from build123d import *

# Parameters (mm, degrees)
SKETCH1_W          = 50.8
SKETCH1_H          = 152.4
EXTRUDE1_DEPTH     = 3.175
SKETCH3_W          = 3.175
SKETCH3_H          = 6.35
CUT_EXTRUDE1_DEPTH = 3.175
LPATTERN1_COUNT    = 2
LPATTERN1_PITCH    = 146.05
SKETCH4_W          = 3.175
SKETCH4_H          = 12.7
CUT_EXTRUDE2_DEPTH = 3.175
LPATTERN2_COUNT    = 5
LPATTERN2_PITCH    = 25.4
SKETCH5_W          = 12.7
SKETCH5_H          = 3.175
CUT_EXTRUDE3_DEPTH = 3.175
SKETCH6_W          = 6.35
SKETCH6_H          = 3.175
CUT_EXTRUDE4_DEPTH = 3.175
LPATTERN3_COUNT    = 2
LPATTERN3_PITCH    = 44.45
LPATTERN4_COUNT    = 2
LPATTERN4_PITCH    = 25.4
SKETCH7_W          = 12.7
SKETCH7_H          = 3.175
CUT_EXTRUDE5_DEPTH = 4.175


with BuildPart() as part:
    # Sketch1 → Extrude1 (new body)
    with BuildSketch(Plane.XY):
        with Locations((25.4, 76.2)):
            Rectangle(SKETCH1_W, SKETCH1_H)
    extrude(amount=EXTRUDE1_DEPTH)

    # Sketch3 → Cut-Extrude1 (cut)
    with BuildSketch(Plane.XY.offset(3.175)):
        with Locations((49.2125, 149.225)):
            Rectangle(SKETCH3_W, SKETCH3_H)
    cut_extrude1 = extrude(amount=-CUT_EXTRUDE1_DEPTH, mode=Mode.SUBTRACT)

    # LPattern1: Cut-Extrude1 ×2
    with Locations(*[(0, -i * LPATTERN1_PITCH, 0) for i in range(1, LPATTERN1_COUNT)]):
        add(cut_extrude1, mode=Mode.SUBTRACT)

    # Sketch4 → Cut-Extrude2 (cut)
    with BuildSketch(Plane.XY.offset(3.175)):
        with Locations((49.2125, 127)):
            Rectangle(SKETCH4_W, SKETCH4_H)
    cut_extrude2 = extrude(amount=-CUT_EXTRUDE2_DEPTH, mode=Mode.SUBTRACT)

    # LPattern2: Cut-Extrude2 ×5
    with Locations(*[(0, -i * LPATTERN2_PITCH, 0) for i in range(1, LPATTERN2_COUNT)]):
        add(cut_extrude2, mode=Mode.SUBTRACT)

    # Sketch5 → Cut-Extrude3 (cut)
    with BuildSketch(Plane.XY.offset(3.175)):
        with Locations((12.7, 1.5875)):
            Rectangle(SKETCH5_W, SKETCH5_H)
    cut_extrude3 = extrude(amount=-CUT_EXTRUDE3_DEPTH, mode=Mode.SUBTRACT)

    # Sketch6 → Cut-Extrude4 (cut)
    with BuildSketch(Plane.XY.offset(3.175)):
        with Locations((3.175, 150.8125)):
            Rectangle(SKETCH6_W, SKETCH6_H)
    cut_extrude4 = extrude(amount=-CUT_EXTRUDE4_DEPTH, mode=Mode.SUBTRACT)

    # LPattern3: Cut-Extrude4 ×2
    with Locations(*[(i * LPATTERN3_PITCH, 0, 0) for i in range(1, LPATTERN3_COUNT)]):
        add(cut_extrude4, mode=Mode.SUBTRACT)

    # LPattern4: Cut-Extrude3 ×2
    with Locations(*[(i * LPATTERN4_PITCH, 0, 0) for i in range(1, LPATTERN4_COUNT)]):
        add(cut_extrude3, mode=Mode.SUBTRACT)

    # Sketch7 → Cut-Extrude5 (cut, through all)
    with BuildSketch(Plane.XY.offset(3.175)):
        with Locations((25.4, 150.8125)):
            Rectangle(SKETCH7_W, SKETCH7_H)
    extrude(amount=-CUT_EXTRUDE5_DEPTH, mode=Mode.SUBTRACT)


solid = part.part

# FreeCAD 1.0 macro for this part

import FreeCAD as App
import Part
import Sketcher
Q = App.Units.Quantity

doc = App.newDocument("Part")
body = doc.addObject("PartDesign::Body", "Body")

# Sketch on XY plane
sketch1 = doc.addObject("Sketcher::SketchObject", "Sketch")
body.addObject(sketch1)
sketch1.AttachmentSupport = (doc.XY_Plane, [""])
sketch1.MapMode = "FlatFace"
sketch1.addGeometry(Part.LineSegment(App.Vector(0, 152, 0), App.Vector(0, 0, 0)), False)
sketch1.addGeometry(Part.LineSegment(App.Vector(0, 0, 0), App.Vector(51, 0, 0)), False)
sketch1.addGeometry(Part.LineSegment(App.Vector(51, 0, 0), App.Vector(51, 152, 0)), False)
sketch1.addGeometry(Part.LineSegment(App.Vector(51, 152, 0), App.Vector(0, 152, 0)), False)
sketch1.addConstraint(Sketcher.Constraint("Coincident", 0, 2, 1, 1))
sketch1.addConstraint(Sketcher.Constraint("Coincident", 1, 2, 2, 1))
sketch1.addConstraint(Sketcher.Constraint("Coincident", 2, 2, 3, 1))
sketch1.addConstraint(Sketcher.Constraint("Coincident", 3, 2, 0, 1))
sketch1.addConstraint(Sketcher.Constraint("Vertical", 0))
sketch1.addConstraint(Sketcher.Constraint("Horizontal", 1))
sketch1.addConstraint(Sketcher.Constraint("Vertical", 2))
sketch1.addConstraint(Sketcher.Constraint("Horizontal", 3))
sketch1.addConstraint(Sketcher.Constraint("Coincident", 0, 2, -1, 1))
sketch1.addConstraint(Sketcher.Constraint("DistanceX", 1, 1, 1, 2, Q("2 in")))
sketch1.addConstraint(Sketcher.Constraint("DistanceY", 0, 2, 0, 1, Q("6 in")))
pad1 = doc.addObject("PartDesign::Pad", "Pad")
body.addObject(pad1)
pad1.Profile = sketch1
pad1.Length = Q("0.125 in")

# Sketch on XY plane
sketch2 = doc.addObject("Sketcher::SketchObject", "Sketch001")
body.addObject(sketch2)
sketch2.AttachmentSupport = (doc.XY_Plane, [""])
sketch2.MapMode = "FlatFace"
sketch2.AttachmentOffset = App.Placement(App.Vector(0, 0, 0.125 * 25.4), App.Rotation())
sketch2.addGeometry(Part.LineSegment(App.Vector(47.6, 152.4, 0), App.Vector(47.6, 146.1, 0)), False)
sketch2.addGeometry(Part.LineSegment(App.Vector(47.6, 146.1, 0), App.Vector(50.8, 146.1, 0)), False)
sketch2.addGeometry(Part.LineSegment(App.Vector(50.8, 146.1, 0), App.Vector(50.8, 152.4, 0)), False)
sketch2.addGeometry(Part.LineSegment(App.Vector(50.8, 152.4, 0), App.Vector(47.6, 152.4, 0)), False)
sketch2.addConstraint(Sketcher.Constraint("Coincident", 0, 2, 1, 1))
sketch2.addConstraint(Sketcher.Constraint("Coincident", 1, 2, 2, 1))
sketch2.addConstraint(Sketcher.Constraint("Coincident", 2, 2, 3, 1))
sketch2.addConstraint(Sketcher.Constraint("Coincident", 3, 2, 0, 1))
sketch2.addConstraint(Sketcher.Constraint("Vertical", 0))
sketch2.addConstraint(Sketcher.Constraint("Horizontal", 1))
sketch2.addConstraint(Sketcher.Constraint("Vertical", 2))
sketch2.addConstraint(Sketcher.Constraint("Horizontal", 3))
sketch2.addConstraint(Sketcher.Constraint("DistanceX", -1, 1, 1, 2, Q("2 in")))
sketch2.addConstraint(Sketcher.Constraint("DistanceY", -1, 1, 2, 2, Q("6 in")))
sketch2.addConstraint(Sketcher.Constraint("DistanceY", 0, 2, 0, 1, Q("0.25 in")))
sketch2.addConstraint(Sketcher.Constraint("DistanceX", 1, 1, 1, 2, Q("0.125 in")))
pocket1 = doc.addObject("PartDesign::Pocket", "Pocket")
body.addObject(pocket1)
pocket1.Profile = sketch2
pocket1.Length = Q("0.125 in")
doc.recompute()

linearpattern = doc.addObject("PartDesign::LinearPattern", "LinearPattern")
body.addObject(linearpattern)
linearpattern.Originals = [pocket1]
linearpattern.Direction = (doc.Y_Axis, [""])
linearpattern.Mode = "offset"
linearpattern.Offset = Q("5.75 in")
linearpattern.Occurrences = 2
linearpattern.Reversed = True
body.Tip = linearpattern

# Sketch on XY plane
sketch3 = doc.addObject("Sketcher::SketchObject", "Sketch002")
body.addObject(sketch3)
sketch3.AttachmentSupport = (doc.XY_Plane, [""])
sketch3.MapMode = "FlatFace"
sketch3.AttachmentOffset = App.Placement(App.Vector(0, 0, 0.125 * 25.4), App.Rotation())
sketch3.addGeometry(Part.LineSegment(App.Vector(47.6, 133.3, 0), App.Vector(47.6, 120.7, 0)), False)
sketch3.addGeometry(Part.LineSegment(App.Vector(47.6, 120.7, 0), App.Vector(50.8, 120.7, 0)), False)
sketch3.addGeometry(Part.LineSegment(App.Vector(50.8, 120.7, 0), App.Vector(50.8, 133.3, 0)), False)
sketch3.addGeometry(Part.LineSegment(App.Vector(50.8, 133.3, 0), App.Vector(47.6, 133.3, 0)), False)
sketch3.addConstraint(Sketcher.Constraint("Coincident", 0, 2, 1, 1))
sketch3.addConstraint(Sketcher.Constraint("Coincident", 1, 2, 2, 1))
sketch3.addConstraint(Sketcher.Constraint("Coincident", 2, 2, 3, 1))
sketch3.addConstraint(Sketcher.Constraint("Coincident", 3, 2, 0, 1))
sketch3.addConstraint(Sketcher.Constraint("Vertical", 0))
sketch3.addConstraint(Sketcher.Constraint("Horizontal", 1))
sketch3.addConstraint(Sketcher.Constraint("Vertical", 2))
sketch3.addConstraint(Sketcher.Constraint("Horizontal", 3))
sketch3.addConstraint(Sketcher.Constraint("DistanceY", 0, 2, 0, 1, Q("0.5 in")))
sketch3.addConstraint(Sketcher.Constraint("DistanceX", -1, 1, 1, 2, Q("2 in")))
sketch3.addConstraint(Sketcher.Constraint("DistanceX", 1, 1, 1, 2, Q("0.125 in")))
sketch3.addConstraint(Sketcher.Constraint("DistanceY", -1, 1, 0, 2, Q("4.75 in")))
pocket2 = doc.addObject("PartDesign::Pocket", "Pocket001")
body.addObject(pocket2)
pocket2.Profile = sketch3
pocket2.Length = Q("0.125 in")
doc.recompute()

linearpattern2 = doc.addObject("PartDesign::LinearPattern", "LinearPattern001")
body.addObject(linearpattern2)
linearpattern2.Originals = [pocket2]
linearpattern2.Direction = (doc.Y_Axis, [""])
linearpattern2.Mode = "offset"
linearpattern2.Offset = Q("1 in")
linearpattern2.Occurrences = 5
linearpattern2.Reversed = True
body.Tip = linearpattern2

# Sketch on XY plane
sketch4 = doc.addObject("Sketcher::SketchObject", "Sketch003")
body.addObject(sketch4)
sketch4.AttachmentSupport = (doc.XY_Plane, [""])
sketch4.MapMode = "FlatFace"
sketch4.AttachmentOffset = App.Placement(App.Vector(0, 0, 0.125 * 25.4), App.Rotation())
sketch4.addGeometry(Part.LineSegment(App.Vector(6.3, 3.2, 0), App.Vector(6.3, 0, 0)), False)
sketch4.addGeometry(Part.LineSegment(App.Vector(6.3, 0, 0), App.Vector(19.1, 0, 0)), False)
sketch4.addGeometry(Part.LineSegment(App.Vector(19.1, 0, 0), App.Vector(19.1, 3.2, 0)), False)
sketch4.addGeometry(Part.LineSegment(App.Vector(19.1, 3.2, 0), App.Vector(6.3, 3.2, 0)), False)
sketch4.addConstraint(Sketcher.Constraint("Coincident", 0, 2, 1, 1))
sketch4.addConstraint(Sketcher.Constraint("Coincident", 1, 2, 2, 1))
sketch4.addConstraint(Sketcher.Constraint("Coincident", 2, 2, 3, 1))
sketch4.addConstraint(Sketcher.Constraint("Coincident", 3, 2, 0, 1))
sketch4.addConstraint(Sketcher.Constraint("Vertical", 0))
sketch4.addConstraint(Sketcher.Constraint("Horizontal", 1))
sketch4.addConstraint(Sketcher.Constraint("Vertical", 2))
sketch4.addConstraint(Sketcher.Constraint("Horizontal", 3))
sketch4.addConstraint(Sketcher.Constraint("PointOnObject", 0, 2, -1))
sketch4.addConstraint(Sketcher.Constraint("DistanceX", 1, 1, 1, 2, Q("0.5 in")))
sketch4.addConstraint(Sketcher.Constraint("DistanceY", 0, 2, 0, 1, Q("0.125 in")))
sketch4.addConstraint(Sketcher.Constraint("DistanceX", -1, 1, 0, 2, Q("0.25 in")))
pocket3 = doc.addObject("PartDesign::Pocket", "Pocket002")
body.addObject(pocket3)
pocket3.Profile = sketch4
pocket3.Length = Q("0.125 in")

# Sketch on XY plane
sketch5 = doc.addObject("Sketcher::SketchObject", "Sketch004")
body.addObject(sketch5)
sketch5.AttachmentSupport = (doc.XY_Plane, [""])
sketch5.MapMode = "FlatFace"
sketch5.AttachmentOffset = App.Placement(App.Vector(0, 0, 0.125 * 25.4), App.Rotation())
sketch5.addGeometry(Part.LineSegment(App.Vector(0, 152.4, 0), App.Vector(0, 149.2, 0)), False)
sketch5.addGeometry(Part.LineSegment(App.Vector(0, 149.2, 0), App.Vector(6.3, 149.2, 0)), False)
sketch5.addGeometry(Part.LineSegment(App.Vector(6.3, 149.2, 0), App.Vector(6.3, 152.4, 0)), False)
sketch5.addGeometry(Part.LineSegment(App.Vector(6.3, 152.4, 0), App.Vector(0, 152.4, 0)), False)
sketch5.addConstraint(Sketcher.Constraint("Coincident", 0, 2, 1, 1))
sketch5.addConstraint(Sketcher.Constraint("Coincident", 1, 2, 2, 1))
sketch5.addConstraint(Sketcher.Constraint("Coincident", 2, 2, 3, 1))
sketch5.addConstraint(Sketcher.Constraint("Coincident", 3, 2, 0, 1))
sketch5.addConstraint(Sketcher.Constraint("Vertical", 0))
sketch5.addConstraint(Sketcher.Constraint("Horizontal", 1))
sketch5.addConstraint(Sketcher.Constraint("Vertical", 2))
sketch5.addConstraint(Sketcher.Constraint("Horizontal", 3))
sketch5.addConstraint(Sketcher.Constraint("PointOnObject", 0, 2, -2))
sketch5.addConstraint(Sketcher.Constraint("DistanceY", -1, 1, 2, 2, Q("6 in")))
sketch5.addConstraint(Sketcher.Constraint("DistanceX", 1, 1, 1, 2, Q("0.25 in")))
sketch5.addConstraint(Sketcher.Constraint("DistanceY", 0, 2, 0, 1, Q("0.125 in")))
pocket4 = doc.addObject("PartDesign::Pocket", "Pocket003")
body.addObject(pocket4)
pocket4.Profile = sketch5
pocket4.Length = Q("0.125 in")
doc.recompute()

linearpattern3 = doc.addObject("PartDesign::LinearPattern", "LinearPattern002")
body.addObject(linearpattern3)
linearpattern3.Originals = [pocket4]
linearpattern3.Direction = (doc.X_Axis, [""])
linearpattern3.Mode = "offset"
linearpattern3.Offset = Q("1.75 in")
linearpattern3.Occurrences = 2
body.Tip = linearpattern3
doc.recompute()

linearpattern4 = doc.addObject("PartDesign::LinearPattern", "LinearPattern003")
body.addObject(linearpattern4)
linearpattern4.Originals = [pocket3]
linearpattern4.Direction = (doc.X_Axis, [""])
linearpattern4.Mode = "offset"
linearpattern4.Offset = Q("1 in")
linearpattern4.Occurrences = 2
body.Tip = linearpattern4

# Sketch on XY plane
sketch6 = doc.addObject("Sketcher::SketchObject", "Sketch005")
body.addObject(sketch6)
sketch6.AttachmentSupport = (doc.XY_Plane, [""])
sketch6.MapMode = "FlatFace"
sketch6.AttachmentOffset = App.Placement(App.Vector(0, 0, 0.125 * 25.4), App.Rotation())
sketch6.addGeometry(Part.LineSegment(App.Vector(19.1, 152.4, 0), App.Vector(19.1, 149.2, 0)), False)
sketch6.addGeometry(Part.LineSegment(App.Vector(19.1, 149.2, 0), App.Vector(31.8, 149.2, 0)), False)
sketch6.addGeometry(Part.LineSegment(App.Vector(31.8, 149.2, 0), App.Vector(31.8, 152.4, 0)), False)
sketch6.addGeometry(Part.LineSegment(App.Vector(31.8, 152.4, 0), App.Vector(19.1, 152.4, 0)), False)
sketch6.addConstraint(Sketcher.Constraint("Coincident", 0, 2, 1, 1))
sketch6.addConstraint(Sketcher.Constraint("Coincident", 1, 2, 2, 1))
sketch6.addConstraint(Sketcher.Constraint("Coincident", 2, 2, 3, 1))
sketch6.addConstraint(Sketcher.Constraint("Coincident", 3, 2, 0, 1))
sketch6.addConstraint(Sketcher.Constraint("Vertical", 0))
sketch6.addConstraint(Sketcher.Constraint("Horizontal", 1))
sketch6.addConstraint(Sketcher.Constraint("Vertical", 2))
sketch6.addConstraint(Sketcher.Constraint("Horizontal", 3))
sketch6.addConstraint(Sketcher.Constraint("DistanceX", 1, 1, 1, 2, Q("0.5 in")))
sketch6.addConstraint(Sketcher.Constraint("DistanceY", -1, 1, 2, 2, Q("6 in")))
sketch6.addConstraint(Sketcher.Constraint("DistanceY", 0, 2, 0, 1, Q("0.125 in")))
sketch6.addConstraint(Sketcher.Constraint("DistanceX", -1, 1, 0, 2, Q("0.75 in")))
pocket5 = doc.addObject("PartDesign::Pocket", "Pocket004")
body.addObject(pocket5)
pocket5.Profile = sketch6
pocket5.Type = "ThroughAll"

doc.recompute()
